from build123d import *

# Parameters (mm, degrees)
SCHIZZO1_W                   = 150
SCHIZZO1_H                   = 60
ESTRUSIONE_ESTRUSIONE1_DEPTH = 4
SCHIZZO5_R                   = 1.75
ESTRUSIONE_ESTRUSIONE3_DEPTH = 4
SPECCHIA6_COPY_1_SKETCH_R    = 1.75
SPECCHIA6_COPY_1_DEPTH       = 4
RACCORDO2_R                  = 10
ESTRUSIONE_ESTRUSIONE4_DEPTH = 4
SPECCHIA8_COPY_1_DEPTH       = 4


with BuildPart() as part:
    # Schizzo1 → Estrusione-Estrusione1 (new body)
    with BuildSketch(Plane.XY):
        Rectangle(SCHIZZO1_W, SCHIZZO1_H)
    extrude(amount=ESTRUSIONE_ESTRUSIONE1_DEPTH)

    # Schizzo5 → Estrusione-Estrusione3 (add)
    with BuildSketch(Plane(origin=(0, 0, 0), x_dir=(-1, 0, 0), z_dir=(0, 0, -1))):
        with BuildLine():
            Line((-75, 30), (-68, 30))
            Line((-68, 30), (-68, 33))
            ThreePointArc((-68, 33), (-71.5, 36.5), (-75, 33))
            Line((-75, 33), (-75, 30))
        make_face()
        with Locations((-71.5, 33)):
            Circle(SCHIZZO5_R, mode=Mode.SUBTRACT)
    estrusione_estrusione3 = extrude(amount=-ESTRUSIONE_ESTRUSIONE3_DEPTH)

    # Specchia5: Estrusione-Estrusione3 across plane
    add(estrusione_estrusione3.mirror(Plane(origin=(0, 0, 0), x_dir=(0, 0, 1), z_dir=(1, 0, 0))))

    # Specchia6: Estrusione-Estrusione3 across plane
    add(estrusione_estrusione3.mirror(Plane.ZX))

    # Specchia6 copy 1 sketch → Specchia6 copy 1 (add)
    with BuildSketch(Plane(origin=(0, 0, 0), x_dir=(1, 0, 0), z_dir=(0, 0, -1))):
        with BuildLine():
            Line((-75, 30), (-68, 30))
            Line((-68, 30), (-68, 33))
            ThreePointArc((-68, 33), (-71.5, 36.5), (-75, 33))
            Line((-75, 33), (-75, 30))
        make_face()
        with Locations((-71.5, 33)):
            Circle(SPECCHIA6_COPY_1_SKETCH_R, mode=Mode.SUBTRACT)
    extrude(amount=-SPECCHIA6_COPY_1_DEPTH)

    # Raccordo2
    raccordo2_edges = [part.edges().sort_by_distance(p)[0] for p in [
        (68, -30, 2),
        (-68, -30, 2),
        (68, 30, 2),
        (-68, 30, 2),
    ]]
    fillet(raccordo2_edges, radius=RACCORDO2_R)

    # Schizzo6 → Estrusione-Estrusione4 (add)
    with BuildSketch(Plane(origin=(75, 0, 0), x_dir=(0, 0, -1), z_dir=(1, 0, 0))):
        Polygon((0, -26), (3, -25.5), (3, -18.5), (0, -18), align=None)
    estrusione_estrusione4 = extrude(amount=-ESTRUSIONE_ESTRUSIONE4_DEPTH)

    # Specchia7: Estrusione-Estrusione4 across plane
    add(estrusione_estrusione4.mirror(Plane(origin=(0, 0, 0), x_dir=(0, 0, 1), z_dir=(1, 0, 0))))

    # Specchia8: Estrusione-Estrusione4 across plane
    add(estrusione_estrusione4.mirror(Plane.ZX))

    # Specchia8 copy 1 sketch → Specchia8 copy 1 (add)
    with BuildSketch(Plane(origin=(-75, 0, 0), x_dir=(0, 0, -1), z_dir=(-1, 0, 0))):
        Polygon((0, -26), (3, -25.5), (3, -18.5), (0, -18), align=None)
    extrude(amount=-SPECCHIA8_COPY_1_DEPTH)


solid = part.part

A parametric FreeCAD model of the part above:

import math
import FreeCAD as App
import Part
import Sketcher
from FreeCAD import Vector
Q = App.Units.Quantity


def edges_at(feature, points):
    """Names of the edges that pass closest to the given points."""
    edges = feature.Shape.Edges
    near = lambda p: min(range(len(edges)), key=lambda i: edges[i].distToShape(Part.Vertex(*p))[0])
    return sorted({f"Edge{near(p) + 1}" for p in points})


def add_polygon(sketch, points):
    """Adds a closed chain of lines whose ends are joined by coincident constraints."""
    first, n = sketch.GeometryCount, len(points)
    for a, b in zip(points, points[1:] + points[:1]):
        sketch.addGeometry(Part.LineSegment(App.Vector(*a, 0), App.Vector(*b, 0)), False)
    for i in range(n):
        sketch.addConstraint(Sketcher.Constraint("Coincident", first + i, 2, first + (i + 1) % n, 1))

doc = App.newDocument("Part")
body = doc.addObject("PartDesign::Body", "Body")

# Sketch on XY plane
sketch1 = body.newObject("Sketcher::SketchObject", "Sketch")
sketch1.AttachmentSupport = (doc.getObject("XY_Plane"), [""])
sketch1.MapMode = "FlatFace"
add_polygon(sketch1, [(-75, 30), (-75, -30), (75, -30), (75, 30)])  # lines 0-3
sketch1.addConstraint([
    Sketcher.Constraint("Vertical", 0),
    Sketcher.Constraint("Horizontal", 1),
    Sketcher.Constraint("Vertical", 2),
    Sketcher.Constraint("Horizontal", 3),
    Sketcher.Constraint("Symmetric", 0, 2, 2, 2, -1, 1),
    Sketcher.Constraint("DistanceX", 1, 1, 1, 2, Q("150 mm")),
    Sketcher.Constraint("DistanceY", 0, 2, 0, 1, Q("60 mm")),
])
pad1 = body.newObject("PartDesign::Pad", "Pad")
pad1.Profile = sketch1
pad1.Length = 4

# Sketch on XY plane
sketch2 = body.newObject("Sketcher::SketchObject", "Sketch001")
sketch2.AttachmentSupport = (doc.getObject("XY_Plane"), [""])
sketch2.MapMode = "FlatFace"
sketch2.addGeometry([
    Part.LineSegment(Vector(75, 30, 0), Vector(68, 30, 0)),  # 0
    Part.LineSegment(Vector(68, 30, 0), Vector(68, 33, 0)),  # 1
    Part.ArcOfCircle(Part.Circle(Vector(71.5, 33, 0), Vector(0, 0, 1), 3.5), math.radians(0), math.radians(180)),  # 2
    Part.LineSegment(Vector(75, 33, 0), Vector(75, 30, 0)),  # 3
    Part.Circle(Vector(71.5, 33, 0), Vector(0, 0, 1), 1.75),  # 4
], False)
sketch2.addConstraint([
    Sketcher.Constraint("Coincident", 0, 2, 1, 1),
    Sketcher.Constraint("Tangent", 1, 2, 2, 2),
    Sketcher.Constraint("Tangent", 2, 1, 3, 1),
    Sketcher.Constraint("Coincident", 3, 2, 0, 1),
    Sketcher.Constraint("Horizontal", 0),
    Sketcher.Constraint("Vertical", 1),
    Sketcher.Constraint("Vertical", 3),
    Sketcher.Constraint("Coincident", 4, 3, 2, 3),
    Sketcher.Constraint("Diameter", 4, Q("3.5 mm")),
    Sketcher.Constraint("Radius", 2, Q("3.5 mm")),
    Sketcher.Constraint("DistanceY", 1, 1, 1, 2, Q("3 mm")),
    Sketcher.Constraint("DistanceY", -1, 1, 2, 3, Q("33 mm")),
    Sketcher.Constraint("DistanceX", -1, 1, 0, 2, Q("68 mm")),
])
pad2 = body.newObject("PartDesign::Pad", "Pad001")
pad2.Profile = sketch2
pad2.Length = 4
doc.recompute()

mirrored = body.newObject("PartDesign::Mirrored", "Mirrored")
mirrored.Originals = [pad2]
mirrored.MirrorPlane = (doc.getObject("YZ_Plane"), [""])
body.Tip = mirrored
doc.recompute()

mirrored2 = body.newObject("PartDesign::Mirrored", "Mirrored001")
mirrored2.Originals = [pad2]
mirrored2.MirrorPlane = (doc.getObject("XZ_Plane"), [""])
body.Tip = mirrored2

# Sketch on XY plane
sketch3 = body.newObject("Sketcher::SketchObject", "Sketch002")
sketch3.AttachmentSupport = (doc.getObject("XY_Plane"), [""])
sketch3.MapMode = "FlatFace"
sketch3.addGeometry([
    Part.LineSegment(Vector(-75, -30, 0), Vector(-68, -30, 0)),  # 0
    Part.LineSegment(Vector(-68, -30, 0), Vector(-68, -33, 0)),  # 1
    Part.ArcOfCircle(Part.Circle(Vector(-71.5, -33, 0), Vector(0, 0, 1), 3.5), math.radians(180), math.radians(360)),  # 2
    Part.LineSegment(Vector(-75, -33, 0), Vector(-75, -30, 0)),  # 3
    Part.Circle(Vector(-71.5, -33, 0), Vector(0, 0, 1), 1.75),  # 4
], False)
sketch3.addConstraint([
    Sketcher.Constraint("Coincident", 0, 2, 1, 1),
    Sketcher.Constraint("Tangent", 1, 2, 2, 2),
    Sketcher.Constraint("Tangent", 2, 1, 3, 1),
    Sketcher.Constraint("Coincident", 3, 2, 0, 1),
    Sketcher.Constraint("Horizontal", 0),
    Sketcher.Constraint("Vertical", 1),
    Sketcher.Constraint("Vertical", 3),
    Sketcher.Constraint("Coincident", 4, 3, 2, 3),
    Sketcher.Constraint("Diameter", 4, Q("3.5 mm")),
    Sketcher.Constraint("Radius", 2, Q("3.5 mm")),
    Sketcher.Constraint("DistanceY", 1, 2, 1, 1, Q("3 mm")),
    Sketcher.Constraint("DistanceY", 2, 3, -1, 1, Q("33 mm")),
    Sketcher.Constraint("DistanceX", 0, 2, -1, 1, Q("68 mm")),
])
pad3 = body.newObject("PartDesign::Pad", "Pad002")
pad3.Profile = sketch3
pad3.Length = 4
doc.recompute()

fillet = body.newObject("PartDesign::Fillet", "Fillet")
fillet.Base = (pad3, edges_at(pad3, [
    (68, -30, 2),
    (-68, -30, 2),
    (68, 30, 2),
    (-68, 30, 2),
]))
fillet.Radius = 10

# Sketch on YZ plane
sketch4 = body.newObject("Sketcher::SketchObject", "Sketch003")
sketch4.AttachmentSupport = (doc.getObject("YZ_Plane"), [""])
sketch4.MapMode = "FlatFace"
sketch4.AttachmentOffset = App.Placement(Vector(0, 0, 75), App.Rotation())
add_polygon(sketch4, [(-26, 0), (-25.5, -3), (-18.5, -3), (-18, 0)])  # lines 0-3
sketch4.addConstraint([
    Sketcher.Constraint("Horizontal", 1),
    Sketcher.Constraint("Horizontal", 3),
    Sketcher.Constraint("PointOnObject", 2, 2, -1),
    Sketcher.Constraint("Equal", 0, 2),
    Sketcher.Constraint("DistanceX", 1, 1, 1, 2, Q("7 mm")),
    Sketcher.Constraint("DistanceX", 3, 2, 3, 1, Q("8 mm")),
    Sketcher.Constraint("DistanceY", 0, 2, -1, 1, Q("3 mm")),
    Sketcher.Constraint("DistanceX", 2, 2, -1, 1, Q("18 mm")),
])
pad4 = body.newObject("PartDesign::Pad", "Pad003")
pad4.Profile = sketch4
pad4.Length = 4
pad4.Reversed = True
doc.recompute()

mirrored3 = body.newObject("PartDesign::Mirrored", "Mirrored002")
mirrored3.Originals = [pad4]
mirrored3.MirrorPlane = (doc.getObject("YZ_Plane"), [""])
body.Tip = mirrored3
doc.recompute()

mirrored4 = body.newObject("PartDesign::Mirrored", "Mirrored003")
mirrored4.Originals = [pad4]
mirrored4.MirrorPlane = (doc.getObject("XZ_Plane"), [""])
body.Tip = mirrored4

# Sketch on YZ plane
sketch5 = body.newObject("Sketcher::SketchObject", "Sketch004")
sketch5.AttachmentSupport = (doc.getObject("YZ_Plane"), [""])
sketch5.MapMode = "FlatFace"
sketch5.AttachmentOffset = App.Placement(Vector(0, 0, -75), App.Rotation())
add_polygon(sketch5, [(26, 0), (25.5, -3), (18.5, -3), (18, 0)])  # lines 0-3
sketch5.addConstraint([
    Sketcher.Constraint("Horizontal", 1),
    Sketcher.Constraint("Horizontal", 3),
    Sketcher.Constraint("PointOnObject", 2, 2, -1),
    Sketcher.Constraint("Equal", 0, 2),
    Sketcher.Constraint("DistanceX", 1, 2, 1, 1, Q("7 mm")),
    Sketcher.Constraint("DistanceX", 3, 1, 3, 2, Q("8 mm")),
    Sketcher.Constraint("DistanceY", 0, 2, -1, 1, Q("3 mm")),
    Sketcher.Constraint("DistanceX", -1, 1, 2, 2, Q("18 mm")),
])
pad5 = body.newObject("PartDesign::Pad", "Pad004")
pad5.Profile = sketch5
pad5.Length = 4

doc.recompute()
